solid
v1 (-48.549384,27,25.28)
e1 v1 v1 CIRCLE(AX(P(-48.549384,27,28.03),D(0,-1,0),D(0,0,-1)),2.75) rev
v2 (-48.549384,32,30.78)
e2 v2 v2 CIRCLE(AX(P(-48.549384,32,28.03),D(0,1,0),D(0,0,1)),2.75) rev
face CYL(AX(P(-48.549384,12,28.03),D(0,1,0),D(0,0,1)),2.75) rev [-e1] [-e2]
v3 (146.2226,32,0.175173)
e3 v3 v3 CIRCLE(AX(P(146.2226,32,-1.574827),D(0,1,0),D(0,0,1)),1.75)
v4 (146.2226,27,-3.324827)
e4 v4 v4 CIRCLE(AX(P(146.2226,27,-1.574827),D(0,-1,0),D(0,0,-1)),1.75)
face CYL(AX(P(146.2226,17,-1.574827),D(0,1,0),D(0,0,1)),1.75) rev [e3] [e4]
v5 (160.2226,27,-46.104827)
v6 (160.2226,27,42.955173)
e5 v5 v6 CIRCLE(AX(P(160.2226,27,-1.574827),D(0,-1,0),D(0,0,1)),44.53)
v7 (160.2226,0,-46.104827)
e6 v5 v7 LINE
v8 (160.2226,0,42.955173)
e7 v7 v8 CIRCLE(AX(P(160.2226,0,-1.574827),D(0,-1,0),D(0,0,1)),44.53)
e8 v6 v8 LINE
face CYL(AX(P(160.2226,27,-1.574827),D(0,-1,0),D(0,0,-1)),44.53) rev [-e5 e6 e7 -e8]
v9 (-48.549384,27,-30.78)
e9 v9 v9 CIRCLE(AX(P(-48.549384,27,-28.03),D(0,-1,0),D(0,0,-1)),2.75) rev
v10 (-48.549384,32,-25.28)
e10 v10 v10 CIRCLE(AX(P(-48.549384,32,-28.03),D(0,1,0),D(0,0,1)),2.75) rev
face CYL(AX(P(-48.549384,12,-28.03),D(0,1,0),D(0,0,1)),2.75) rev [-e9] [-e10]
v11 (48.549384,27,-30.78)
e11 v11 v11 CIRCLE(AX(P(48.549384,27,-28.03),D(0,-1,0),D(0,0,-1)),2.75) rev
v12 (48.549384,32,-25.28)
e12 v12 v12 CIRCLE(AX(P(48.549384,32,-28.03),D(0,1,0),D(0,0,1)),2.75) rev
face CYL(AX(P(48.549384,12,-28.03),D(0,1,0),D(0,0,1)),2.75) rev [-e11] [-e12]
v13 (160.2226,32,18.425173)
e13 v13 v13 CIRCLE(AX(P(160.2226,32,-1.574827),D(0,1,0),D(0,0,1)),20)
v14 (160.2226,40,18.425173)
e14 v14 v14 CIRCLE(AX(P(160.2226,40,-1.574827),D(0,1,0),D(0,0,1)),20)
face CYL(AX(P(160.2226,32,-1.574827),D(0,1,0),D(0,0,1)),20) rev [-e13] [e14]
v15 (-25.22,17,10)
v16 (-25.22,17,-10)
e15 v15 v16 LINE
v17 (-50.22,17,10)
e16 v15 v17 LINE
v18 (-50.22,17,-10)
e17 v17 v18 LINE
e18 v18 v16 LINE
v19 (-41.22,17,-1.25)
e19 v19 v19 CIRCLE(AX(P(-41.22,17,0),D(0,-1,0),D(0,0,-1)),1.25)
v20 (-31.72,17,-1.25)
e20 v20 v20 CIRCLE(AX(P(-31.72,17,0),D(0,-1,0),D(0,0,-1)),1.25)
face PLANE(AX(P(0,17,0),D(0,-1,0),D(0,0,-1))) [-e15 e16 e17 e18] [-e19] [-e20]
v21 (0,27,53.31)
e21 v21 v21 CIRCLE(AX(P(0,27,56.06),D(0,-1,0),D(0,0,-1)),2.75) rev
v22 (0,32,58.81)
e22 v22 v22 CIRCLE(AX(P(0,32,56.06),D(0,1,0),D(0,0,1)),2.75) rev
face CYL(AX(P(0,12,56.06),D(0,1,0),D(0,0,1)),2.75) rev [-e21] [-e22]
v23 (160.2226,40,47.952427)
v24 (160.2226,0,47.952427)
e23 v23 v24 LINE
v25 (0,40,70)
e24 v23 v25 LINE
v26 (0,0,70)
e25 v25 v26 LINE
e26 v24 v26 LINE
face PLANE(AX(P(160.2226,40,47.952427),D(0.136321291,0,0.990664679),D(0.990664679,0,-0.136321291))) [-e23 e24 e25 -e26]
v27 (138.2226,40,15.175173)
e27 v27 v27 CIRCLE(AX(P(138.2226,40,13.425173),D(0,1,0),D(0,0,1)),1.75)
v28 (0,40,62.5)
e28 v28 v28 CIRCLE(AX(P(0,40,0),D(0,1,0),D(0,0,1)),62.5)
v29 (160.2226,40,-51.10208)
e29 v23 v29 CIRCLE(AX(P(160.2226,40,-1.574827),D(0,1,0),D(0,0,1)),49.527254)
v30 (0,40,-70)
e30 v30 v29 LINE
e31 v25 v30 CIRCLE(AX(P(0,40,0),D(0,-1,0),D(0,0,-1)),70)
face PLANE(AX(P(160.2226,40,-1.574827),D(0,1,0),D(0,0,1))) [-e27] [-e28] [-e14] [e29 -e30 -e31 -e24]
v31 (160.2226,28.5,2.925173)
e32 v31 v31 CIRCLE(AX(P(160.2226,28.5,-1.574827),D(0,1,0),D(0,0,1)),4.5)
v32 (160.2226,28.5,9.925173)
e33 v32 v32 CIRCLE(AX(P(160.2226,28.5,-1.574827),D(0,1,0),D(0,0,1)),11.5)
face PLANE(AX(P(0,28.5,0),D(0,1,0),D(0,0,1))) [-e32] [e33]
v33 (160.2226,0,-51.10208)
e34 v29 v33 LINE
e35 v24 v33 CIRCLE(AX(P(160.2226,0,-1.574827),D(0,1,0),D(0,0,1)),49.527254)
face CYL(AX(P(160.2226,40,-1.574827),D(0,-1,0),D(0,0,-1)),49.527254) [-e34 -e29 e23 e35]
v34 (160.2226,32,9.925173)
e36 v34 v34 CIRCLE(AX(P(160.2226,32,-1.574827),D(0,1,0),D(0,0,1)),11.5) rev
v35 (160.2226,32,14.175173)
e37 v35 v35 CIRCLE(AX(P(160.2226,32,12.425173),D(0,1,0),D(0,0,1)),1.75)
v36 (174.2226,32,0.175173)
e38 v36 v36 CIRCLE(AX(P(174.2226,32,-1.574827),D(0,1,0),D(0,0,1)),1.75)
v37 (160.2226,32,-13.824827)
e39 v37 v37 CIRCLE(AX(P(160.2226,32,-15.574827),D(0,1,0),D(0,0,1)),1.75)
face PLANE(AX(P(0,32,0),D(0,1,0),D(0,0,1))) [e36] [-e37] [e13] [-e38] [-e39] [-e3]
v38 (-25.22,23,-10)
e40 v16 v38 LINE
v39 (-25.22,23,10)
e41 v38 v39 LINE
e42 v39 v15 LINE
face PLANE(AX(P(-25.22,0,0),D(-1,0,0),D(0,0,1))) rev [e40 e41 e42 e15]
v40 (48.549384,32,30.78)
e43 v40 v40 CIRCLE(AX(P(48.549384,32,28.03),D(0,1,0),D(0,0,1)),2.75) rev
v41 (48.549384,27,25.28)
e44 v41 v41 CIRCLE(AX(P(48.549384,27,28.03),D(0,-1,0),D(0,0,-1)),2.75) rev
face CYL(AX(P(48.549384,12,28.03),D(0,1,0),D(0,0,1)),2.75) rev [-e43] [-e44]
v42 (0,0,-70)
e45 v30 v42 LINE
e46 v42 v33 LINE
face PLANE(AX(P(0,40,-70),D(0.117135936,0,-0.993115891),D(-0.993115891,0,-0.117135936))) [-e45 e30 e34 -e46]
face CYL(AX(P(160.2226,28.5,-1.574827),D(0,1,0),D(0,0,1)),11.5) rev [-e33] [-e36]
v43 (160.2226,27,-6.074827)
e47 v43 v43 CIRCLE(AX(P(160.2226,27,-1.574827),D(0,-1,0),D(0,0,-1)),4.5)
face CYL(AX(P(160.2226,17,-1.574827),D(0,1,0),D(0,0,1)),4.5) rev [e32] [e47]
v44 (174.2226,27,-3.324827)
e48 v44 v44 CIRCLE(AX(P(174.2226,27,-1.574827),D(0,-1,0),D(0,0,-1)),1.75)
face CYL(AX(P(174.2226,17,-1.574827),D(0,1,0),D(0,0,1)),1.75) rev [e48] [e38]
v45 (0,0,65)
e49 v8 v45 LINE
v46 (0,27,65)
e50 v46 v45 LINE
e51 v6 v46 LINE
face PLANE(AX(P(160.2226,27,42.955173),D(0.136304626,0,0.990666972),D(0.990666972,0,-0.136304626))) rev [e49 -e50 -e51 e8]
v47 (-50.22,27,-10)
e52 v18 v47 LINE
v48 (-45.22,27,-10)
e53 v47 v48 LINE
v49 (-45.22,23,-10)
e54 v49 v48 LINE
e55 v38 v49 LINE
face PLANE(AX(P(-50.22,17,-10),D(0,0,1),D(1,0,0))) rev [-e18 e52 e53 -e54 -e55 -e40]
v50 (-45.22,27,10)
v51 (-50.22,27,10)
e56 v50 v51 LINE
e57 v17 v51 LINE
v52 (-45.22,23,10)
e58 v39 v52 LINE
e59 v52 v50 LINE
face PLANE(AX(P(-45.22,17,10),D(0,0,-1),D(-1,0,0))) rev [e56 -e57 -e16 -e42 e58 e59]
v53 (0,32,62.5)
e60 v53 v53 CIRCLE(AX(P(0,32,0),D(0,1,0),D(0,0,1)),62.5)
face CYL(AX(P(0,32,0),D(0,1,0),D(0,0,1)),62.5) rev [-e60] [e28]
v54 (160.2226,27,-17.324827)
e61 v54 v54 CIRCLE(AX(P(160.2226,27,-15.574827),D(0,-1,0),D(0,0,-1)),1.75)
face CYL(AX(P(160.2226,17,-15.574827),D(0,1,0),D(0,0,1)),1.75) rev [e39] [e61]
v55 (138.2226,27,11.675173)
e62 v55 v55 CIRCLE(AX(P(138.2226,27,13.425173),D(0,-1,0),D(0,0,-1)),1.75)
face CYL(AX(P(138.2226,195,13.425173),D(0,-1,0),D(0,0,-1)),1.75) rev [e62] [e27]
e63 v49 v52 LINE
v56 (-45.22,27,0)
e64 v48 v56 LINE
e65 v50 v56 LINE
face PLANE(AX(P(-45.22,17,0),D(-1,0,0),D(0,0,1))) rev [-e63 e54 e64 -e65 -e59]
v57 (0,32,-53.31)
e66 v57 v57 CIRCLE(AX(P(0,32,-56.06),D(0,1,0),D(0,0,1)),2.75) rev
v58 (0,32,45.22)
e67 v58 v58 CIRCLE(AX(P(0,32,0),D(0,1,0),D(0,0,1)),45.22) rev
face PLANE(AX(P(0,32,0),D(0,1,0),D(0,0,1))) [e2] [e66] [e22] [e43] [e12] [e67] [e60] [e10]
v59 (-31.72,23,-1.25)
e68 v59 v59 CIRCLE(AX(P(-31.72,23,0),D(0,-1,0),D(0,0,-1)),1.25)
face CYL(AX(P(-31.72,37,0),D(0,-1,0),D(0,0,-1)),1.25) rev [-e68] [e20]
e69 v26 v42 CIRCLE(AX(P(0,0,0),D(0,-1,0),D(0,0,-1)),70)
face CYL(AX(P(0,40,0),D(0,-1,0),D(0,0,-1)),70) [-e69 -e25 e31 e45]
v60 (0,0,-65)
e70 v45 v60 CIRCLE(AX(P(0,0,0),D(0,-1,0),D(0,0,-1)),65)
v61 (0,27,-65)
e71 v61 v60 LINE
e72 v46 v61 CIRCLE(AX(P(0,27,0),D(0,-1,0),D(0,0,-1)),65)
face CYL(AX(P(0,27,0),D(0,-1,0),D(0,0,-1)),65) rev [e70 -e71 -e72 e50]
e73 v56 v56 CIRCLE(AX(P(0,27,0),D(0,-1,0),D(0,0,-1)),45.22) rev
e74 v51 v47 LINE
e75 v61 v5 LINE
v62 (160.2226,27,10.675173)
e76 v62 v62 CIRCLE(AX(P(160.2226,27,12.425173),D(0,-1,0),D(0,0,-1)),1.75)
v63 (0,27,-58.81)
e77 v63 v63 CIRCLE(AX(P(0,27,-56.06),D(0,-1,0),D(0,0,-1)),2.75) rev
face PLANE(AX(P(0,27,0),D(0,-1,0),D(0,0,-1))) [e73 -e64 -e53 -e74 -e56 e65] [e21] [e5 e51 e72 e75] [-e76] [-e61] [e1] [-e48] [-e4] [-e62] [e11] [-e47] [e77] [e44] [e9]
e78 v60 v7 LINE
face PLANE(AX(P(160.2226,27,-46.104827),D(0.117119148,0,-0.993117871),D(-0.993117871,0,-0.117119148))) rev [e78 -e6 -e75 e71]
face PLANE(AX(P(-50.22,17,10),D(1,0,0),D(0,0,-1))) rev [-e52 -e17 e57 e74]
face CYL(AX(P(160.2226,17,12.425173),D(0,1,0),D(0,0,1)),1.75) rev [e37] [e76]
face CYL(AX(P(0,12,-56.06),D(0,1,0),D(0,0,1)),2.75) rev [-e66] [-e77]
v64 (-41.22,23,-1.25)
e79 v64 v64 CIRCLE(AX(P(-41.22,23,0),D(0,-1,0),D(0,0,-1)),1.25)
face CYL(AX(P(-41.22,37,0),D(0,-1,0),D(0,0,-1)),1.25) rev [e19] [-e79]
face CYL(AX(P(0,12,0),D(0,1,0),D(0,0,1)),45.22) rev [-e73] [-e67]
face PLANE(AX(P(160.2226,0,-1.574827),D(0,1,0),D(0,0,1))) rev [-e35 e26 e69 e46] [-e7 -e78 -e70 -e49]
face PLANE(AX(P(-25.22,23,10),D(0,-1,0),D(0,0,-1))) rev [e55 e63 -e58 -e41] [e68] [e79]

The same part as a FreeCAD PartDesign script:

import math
import FreeCAD as App
import Part
import Sketcher

V = App.Vector
Q = App.Units.Quantity


def add_polygon(sketch, points):
    """Adds a closed chain of lines whose ends are joined by coincident constraints."""
    first, n = sketch.GeometryCount, len(points)
    for a, b in zip(points, points[1:] + points[:1]):
        sketch.addGeometry(Part.LineSegment(App.Vector(*a, 0), App.Vector(*b, 0)), False)
    for i in range(n):
        sketch.addConstraint(Sketcher.Constraint("Coincident", first + i, 2, first + (i + 1) % n, 1))

doc = App.newDocument("Part")
body = doc.addObject("PartDesign::Body", "Body")

# Sketch on XZ plane
sketch1 = body.newObject("Sketcher::SketchObject", "Sketch")
sketch1.AttachmentSupport = (doc.getObject("XZ_Plane"), [""])
sketch1.MapMode = "FlatFace"
sketch1.addGeometry(Part.LineSegment(V(160, -51, 0), V(0, -70, 0)), False)
sketch1.addGeometry(Part.ArcOfCircle(Part.Circle(V(0, 0, 0), V(0, 0, 1), 70), math.radians(90), math.radians(270)), False)
sketch1.addGeometry(Part.LineSegment(V(0, 70, 0), V(160, 48, 0)), False)
sketch1.addGeometry(Part.ArcOfCircle(Part.Circle(V(160, -2, 0), V(0, 0, 1), 50), math.radians(-90), math.radians(90)), False)
sketch1.addConstraint(Sketcher.Constraint("Coincident", 0, 2, 1, 2))
sketch1.addConstraint(Sketcher.Constraint("Coincident", 1, 1, 2, 1))
sketch1.addConstraint(Sketcher.Constraint("Coincident", 2, 2, 3, 2))
sketch1.addConstraint(Sketcher.Constraint("Coincident", 3, 1, 0, 1))
sketch1.addConstraint(Sketcher.Constraint("Coincident", 1, 3, -1, 1))
sketch1.addConstraint(Sketcher.Constraint("PointOnObject", 0, 2, -2))
sketch1.addConstraint(Sketcher.Constraint("PointOnObject", 1, 1, -2))
sketch1.addConstraint(Sketcher.Constraint("Vertical", 3, 3, 2, 2))
sketch1.addConstraint(Sketcher.Constraint("Vertical", 2, 2, 3, 1))
sketch1.addConstraint(Sketcher.Constraint("Radius", 1, Q("70 mm")))
sketch1.addConstraint(Sketcher.Constraint("Radius", 3, Q("49.527254 mm")))
sketch1.addConstraint(Sketcher.Constraint("DistanceX", -1, 1, 3, 3, Q("160.2226 mm")))
sketch1.addConstraint(Sketcher.Constraint("DistanceY", 3, 1, -1, 1, Q("51.10208 mm")))
pad1 = body.newObject("PartDesign::Pad", "Pad")
pad1.Profile = sketch1
pad1.Length = 40
pad1.Reversed = True

# Sketch on XZ plane
sketch2 = body.newObject("Sketcher::SketchObject", "Sketch001")
sketch2.AttachmentSupport = (doc.getObject("XZ_Plane"), [""])
sketch2.MapMode = "FlatFace"
sketch2.AttachmentOffset = App.Placement(V(0, 0, -40), App.Rotation())
sketch2.addGeometry(Part.Circle(V(0, 0, 0), V(0, 0, 1), 45.2), False)
sketch2.addGeometry(Part.Circle(V(0, -56.1, 0), V(0, 0, 1), 2.8), False)
sketch2.addGeometry(Part.Circle(V(-48.5, -28, 0), V(0, 0, 1), 2.8), False)
sketch2.addGeometry(Part.Circle(V(-48.5, 28, 0), V(0, 0, 1), 2.8), False)
sketch2.addGeometry(Part.Circle(V(0, 56.1, 0), V(0, 0, 1), 2.8), False)
sketch2.addGeometry(Part.Circle(V(48.5, 28, 0), V(0, 0, 1), 2.8), False)
sketch2.addGeometry(Part.Circle(V(48.5, -28, 0), V(0, 0, 1), 2.8), False)
sketch2.addConstraint(Sketcher.Constraint("Coincident", 0, 3, -1, 1))
sketch2.addConstraint(Sketcher.Constraint("Equal", 1, 2))
sketch2.addConstraint(Sketcher.Constraint("Equal", 2, 3))
sketch2.addConstraint(Sketcher.Constraint("Equal", 3, 4))
sketch2.addConstraint(Sketcher.Constraint("Equal", 4, 5))
sketch2.addConstraint(Sketcher.Constraint("Equal", 5, 6))
sketch2.addConstraint(Sketcher.Constraint("Symmetric", 1, 3, 4, 3, -1, 1))
sketch2.addConstraint(Sketcher.Constraint("Symmetric", 2, 3, 5, 3, -1, 1))
sketch2.addConstraint(Sketcher.Constraint("Symmetric", 3, 3, 6, 3, -1, 1))
sketch2.addConstraint(Sketcher.Constraint("Symmetric", 3, 3, 5, 3, -2))
sketch2.addConstraint(Sketcher.Constraint("PointOnObject", 1, 3, -2))
sketch2.addConstraint(Sketcher.Constraint("Diameter", 1, Q("5.5 mm")))
sketch2.addConstraint(Sketcher.Constraint("Diameter", 0, Q("90.44 mm")))
sketch2.addConstraint(Sketcher.Constraint("DistanceY", 1, 3, -1, 1, Q("56.06 mm")))
sketch2.addConstraint(Sketcher.Constraint("DistanceY", 2, 3, -1, 1, Q("28.03 mm")))
sketch2.addConstraint(Sketcher.Constraint("DistanceX", 3, 3, 5, 3, Q("97.098768 mm")))
pocket1 = body.newObject("PartDesign::Pocket", "Pocket")
pocket1.Profile = sketch2
pocket1.Length = 28
pocket1.Reversed = True

# Sketch on XZ plane
sketch3 = body.newObject("Sketcher::SketchObject", "Sketch002")
sketch3.AttachmentSupport = (doc.getObject("XZ_Plane"), [""])
sketch3.MapMode = "FlatFace"
sketch3.AttachmentOffset = App.Placement(V(0, 0, -40), App.Rotation())
sketch3.addGeometry(Part.Circle(V(0, 0, 0), V(0, 0, 1), 62), False)
sketch3.addConstraint(Sketcher.Constraint("Coincident", 0, 3, -1, 1))
sketch3.addConstraint(Sketcher.Constraint("Diameter", 0, Q("125 mm")))
pocket2 = body.newObject("PartDesign::Pocket", "Pocket001")
pocket2.Profile = sketch3
pocket2.Length = 8
pocket2.Reversed = True

# Sketch on XZ plane
sketch4 = body.newObject("Sketcher::SketchObject", "Sketch003")
sketch4.AttachmentSupport = (doc.getObject("XZ_Plane"), [""])
sketch4.MapMode = "FlatFace"
sketch4.addGeometry(Part.LineSegment(V(160, 43, 0), V(0, 65, 0)), False)
sketch4.addGeometry(Part.ArcOfCircle(Part.Circle(V(0, 0, 0), V(0, 0, 1), 65), math.radians(90), math.radians(270)), False)
sketch4.addGeometry(Part.LineSegment(V(0, -65, 0), V(160, -46, 0)), False)
sketch4.addGeometry(Part.ArcOfCircle(Part.Circle(V(160, -2, 0), V(0, 0, 1), 45), math.radians(-90), math.radians(90)), False)
sketch4.addConstraint(Sketcher.Constraint("Coincident", 0, 2, 1, 1))
sketch4.addConstraint(Sketcher.Constraint("Coincident", 1, 2, 2, 1))
sketch4.addConstraint(Sketcher.Constraint("Coincident", 2, 2, 3, 1))
sketch4.addConstraint(Sketcher.Constraint("Coincident", 3, 2, 0, 1))
sketch4.addConstraint(Sketcher.Constraint("Coincident", 1, 3, -1, 1))
sketch4.addConstraint(Sketcher.Constraint("PointOnObject", 0, 2, -2))
sketch4.addConstraint(Sketcher.Constraint("PointOnObject", 1, 2, -2))
sketch4.addConstraint(Sketcher.Constraint("Vertical", 3, 3, 2, 2))
sketch4.addConstraint(Sketcher.Constraint("Vertical", 2, 2, 3, 2))
sketch4.addConstraint(Sketcher.Constraint("Radius", 1, Q("65 mm")))
sketch4.addConstraint(Sketcher.Constraint("Radius", 3, Q("44.53 mm")))
sketch4.addConstraint(Sketcher.Constraint("DistanceX", -1, 1, 3, 3, Q("160.2226 mm")))
sketch4.addConstraint(Sketcher.Constraint("Distance", 0, Q("161.73205 mm")))
pocket3 = body.newObject("PartDesign::Pocket", "Pocket002")
pocket3.Profile = sketch4
pocket3.Length = 27

# Sketch on XZ plane
sketch5 = body.newObject("Sketcher::SketchObject", "Sketch004")
sketch5.AttachmentSupport = (doc.getObject("XZ_Plane"), [""])
sketch5.MapMode = "FlatFace"
sketch5.AttachmentOffset = App.Placement(V(0, 0, -40), App.Rotation())
sketch5.addGeometry(Part.Circle(V(160.2, -1.6, 0), V(0, 0, 1), 4.5), False)
sketch5.addGeometry(Part.Circle(V(160.2, 12.4, 0), V(0, 0, 1), 1.8), False)
sketch5.addGeometry(Part.Circle(V(174.2, -1.6, 0), V(0, 0, 1), 1.8), False)
sketch5.addGeometry(Part.Circle(V(160.2, -15.6, 0), V(0, 0, 1), 1.8), False)
sketch5.addGeometry(Part.Circle(V(146.2, -1.6, 0), V(0, 0, 1), 1.8), False)
sketch5.addConstraint(Sketcher.Constraint("Equal", 1, 2))
sketch5.addConstraint(Sketcher.Constraint("Equal", 2, 3))
sketch5.addConstraint(Sketcher.Constraint("Equal", 3, 4))
sketch5.addConstraint(Sketcher.Constraint("Horizontal", 0, 3, 2, 3))
sketch5.addConstraint(Sketcher.Constraint("Horizontal", 2, 3, 4, 3))
sketch5.addConstraint(Sketcher.Constraint("Vertical", 0, 3, 1, 3))
sketch5.addConstraint(Sketcher.Constraint("Vertical", 1, 3, 3, 3))
sketch5.addConstraint(Sketcher.Constraint("Diameter", 0, Q("9 mm")))
sketch5.addConstraint(Sketcher.Constraint("Diameter", 1, Q("3.5 mm")))
sketch5.addConstraint(Sketcher.Constraint("DistanceY", 0, 3, 1, 3, Q("14 mm")))
sketch5.addConstraint(Sketcher.Constraint("DistanceX", 0, 3, 2, 3, Q("14 mm")))
sketch5.addConstraint(Sketcher.Constraint("DistanceY", 3, 3, 0, 3, Q("14 mm")))
sketch5.addConstraint(Sketcher.Constraint("DistanceX", 4, 3, 0, 3, Q("14 mm")))
sketch5.addConstraint(Sketcher.Constraint("DistanceX", -1, 1, 0, 3, Q("160.2226 mm")))
sketch5.addConstraint(Sketcher.Constraint("DistanceY", 0, 3, -1, 1, Q("1.574827 mm")))
pocket4 = body.newObject("PartDesign::Pocket", "Pocket003")
pocket4.Profile = sketch5
pocket4.Length = 23
pocket4.Reversed = True

# Sketch on XZ plane
sketch6 = body.newObject("Sketcher::SketchObject", "Sketch005")
sketch6.AttachmentSupport = (doc.getObject("XZ_Plane"), [""])
sketch6.MapMode = "FlatFace"
sketch6.AttachmentOffset = App.Placement(V(0, 0, -40), App.Rotation())
sketch6.addGeometry(Part.Circle(V(160.2, -1.6, 0), V(0, 0, 1), 11.5), False)
sketch6.addGeometry(Part.Circle(V(160.2, -1.6, 0), V(0, 0, 1), 4.5), False)
sketch6.addConstraint(Sketcher.Constraint("Coincident", 1, 3, 0, 3))
sketch6.addConstraint(Sketcher.Constraint("Diameter", 0, Q("23 mm")))
sketch6.addConstraint(Sketcher.Constraint("Diameter", 1, Q("9 mm")))
sketch6.addConstraint(Sketcher.Constraint("DistanceX", -1, 1, 0, 3, Q("160.2226 mm")))
sketch6.addConstraint(Sketcher.Constraint("DistanceY", 0, 3, -1, 1, Q("1.574827 mm")))
pocket5 = body.newObject("PartDesign::Pocket", "Pocket004")
pocket5.Profile = sketch6
pocket5.Length = 11.5
pocket5.Reversed = True

# Sketch on XZ plane
sketch7 = body.newObject("Sketcher::SketchObject", "Sketch006")
sketch7.AttachmentSupport = (doc.getObject("XZ_Plane"), [""])
sketch7.MapMode = "FlatFace"
sketch7.AttachmentOffset = App.Placement(V(0, 0, -27), App.Rotation())
add_polygon(sketch7, [(-45, 10), (-50, 10), (-50, -10), (-45, -10)])  # lines 0-3
sketch7.addConstraint(Sketcher.Constraint("Horizontal", 0))
sketch7.addConstraint(Sketcher.Constraint("Vertical", 1))
sketch7.addConstraint(Sketcher.Constraint("Horizontal", 2))
sketch7.addConstraint(Sketcher.Constraint("Vertical", 3))
sketch7.addConstraint(Sketcher.Constraint("DistanceX", 0, 2, 0, 1, Q("5 mm")))
sketch7.addConstraint(Sketcher.Constraint("DistanceY", 1, 2, 1, 1, Q("20 mm")))
sketch7.addConstraint(Sketcher.Constraint("DistanceY", -1, 1, 0, 2, Q("10 mm")))
sketch7.addConstraint(Sketcher.Constraint("DistanceX", 0, 2, -1, 1, Q("50.22 mm")))
pad2 = body.newObject("PartDesign::Pad", "Pad001")
pad2.Profile = sketch7
pad2.Length = 10

# Sketch on YZ plane
sketch8 = body.newObject("Sketcher::SketchObject", "Sketch007")
sketch8.AttachmentSupport = (doc.getObject("YZ_Plane"), [""])
sketch8.MapMode = "FlatFace"
sketch8.AttachmentOffset = App.Placement(V(0, 0, -45.22), App.Rotation())
add_polygon(sketch8, [(23, 10), (17, 10), (17, -10), (23, -10)])  # lines 0-3
sketch8.addConstraint(Sketcher.Constraint("Horizontal", 0))
sketch8.addConstraint(Sketcher.Constraint("Vertical", 1))
sketch8.addConstraint(Sketcher.Constraint("Horizontal", 2))
sketch8.addConstraint(Sketcher.Constraint("Vertical", 3))
sketch8.addConstraint(Sketcher.Constraint("DistanceX", 0, 2, 0, 1, Q("6 mm")))
sketch8.addConstraint(Sketcher.Constraint("DistanceY", 1, 2, 1, 1, Q("20 mm")))
sketch8.addConstraint(Sketcher.Constraint("DistanceX", -1, 1, 0, 2, Q("17 mm")))
sketch8.addConstraint(Sketcher.Constraint("DistanceY", -1, 1, 0, 2, Q("10 mm")))
pad3 = body.newObject("PartDesign::Pad", "Pad002")
pad3.Profile = sketch8
pad3.Length = 20

# Sketch on XZ plane
sketch9 = body.newObject("Sketcher::SketchObject", "Sketch008")
sketch9.AttachmentSupport = (doc.getObject("XZ_Plane"), [""])
sketch9.MapMode = "FlatFace"
sketch9.AttachmentOffset = App.Placement(V(0, 0, -17), App.Rotation())
sketch9.addGeometry(Part.Circle(V(-31.7, 0, 0), V(0, 0, 1), 1.2), False)
sketch9.addGeometry(Part.Circle(V(-41.2, 0, 0), V(0, 0, 1), 1.2), False)
sketch9.addConstraint(Sketcher.Constraint("Equal", 0, 1))
sketch9.addConstraint(Sketcher.Constraint("PointOnObject", 0, 3, -1))
sketch9.addConstraint(Sketcher.Constraint("PointOnObject", 1, 3, -1))
sketch9.addConstraint(Sketcher.Constraint("Diameter", 0, Q("2.5 mm")))
sketch9.addConstraint(Sketcher.Constraint("DistanceX", 1, 3, 0, 3, Q("9.5 mm")))
sketch9.addConstraint(Sketcher.Constraint("DistanceX", 0, 3, -1, 1, Q("31.72 mm")))
pocket6 = body.newObject("PartDesign::Pocket", "Pocket005")
pocket6.Profile = sketch9
pocket6.Length = 20

# Sketch on XZ plane
sketch10 = body.newObject("Sketcher::SketchObject", "Sketch009")
sketch10.AttachmentSupport = (doc.getObject("XZ_Plane"), [""])
sketch10.MapMode = "FlatFace"
sketch10.AttachmentOffset = App.Placement(V(0, 0, -40), App.Rotation())
sketch10.addGeometry(Part.Circle(V(160, -2, 0), V(0, 0, 1), 20), False)
sketch10.addConstraint(Sketcher.Constraint("Diameter", 0, Q("40 mm")))
sketch10.addConstraint(Sketcher.Constraint("DistanceX", -1, 1, 0, 3, Q("160.2226 mm")))
sketch10.addConstraint(Sketcher.Constraint("DistanceY", 0, 3, -1, 1, Q("1.574827 mm")))
pocket7 = body.newObject("PartDesign::Pocket", "Pocket006")
pocket7.Profile = sketch10
pocket7.Length = 8
pocket7.Reversed = True

# Sketch on XZ plane
sketch11 = body.newObject("Sketcher::SketchObject", "Sketch010")
sketch11.AttachmentSupport = (doc.getObject("XZ_Plane"), [""])
sketch11.MapMode = "FlatFace"
sketch11.AttachmentOffset = App.Placement(V(0, 0, -27), App.Rotation())
sketch11.addGeometry(Part.Circle(V(160.2, -1.6, 0), V(0, 0, 1), 4.5), False)
sketch11.addGeometry(Part.Circle(V(138.2, 13.4, 0), V(0, 0, 1), 1.8), False)
sketch11.addConstraint(Sketcher.Constraint("Diameter", 0, Q("9 mm")))
sketch11.addConstraint(Sketcher.Constraint("Diameter", 1, Q("3.5 mm")))
sketch11.addConstraint(Sketcher.Constraint("DistanceX", 1, 3, 0, 3, Q("22 mm")))
sketch11.addConstraint(Sketcher.Constraint("DistanceY", 0, 3, 1, 3, Q("15 mm")))
sketch11.addConstraint(Sketcher.Constraint("DistanceX", -1, 1, 0, 3, Q("160.2226 mm")))
sketch11.addConstraint(Sketcher.Constraint("DistanceY", 0, 3, -1, 1, Q("1.574827 mm")))
pocket8 = body.newObject("PartDesign::Pocket", "Pocket007")
pocket8.Profile = sketch11
pocket8.Length = 168

doc.recompute()
